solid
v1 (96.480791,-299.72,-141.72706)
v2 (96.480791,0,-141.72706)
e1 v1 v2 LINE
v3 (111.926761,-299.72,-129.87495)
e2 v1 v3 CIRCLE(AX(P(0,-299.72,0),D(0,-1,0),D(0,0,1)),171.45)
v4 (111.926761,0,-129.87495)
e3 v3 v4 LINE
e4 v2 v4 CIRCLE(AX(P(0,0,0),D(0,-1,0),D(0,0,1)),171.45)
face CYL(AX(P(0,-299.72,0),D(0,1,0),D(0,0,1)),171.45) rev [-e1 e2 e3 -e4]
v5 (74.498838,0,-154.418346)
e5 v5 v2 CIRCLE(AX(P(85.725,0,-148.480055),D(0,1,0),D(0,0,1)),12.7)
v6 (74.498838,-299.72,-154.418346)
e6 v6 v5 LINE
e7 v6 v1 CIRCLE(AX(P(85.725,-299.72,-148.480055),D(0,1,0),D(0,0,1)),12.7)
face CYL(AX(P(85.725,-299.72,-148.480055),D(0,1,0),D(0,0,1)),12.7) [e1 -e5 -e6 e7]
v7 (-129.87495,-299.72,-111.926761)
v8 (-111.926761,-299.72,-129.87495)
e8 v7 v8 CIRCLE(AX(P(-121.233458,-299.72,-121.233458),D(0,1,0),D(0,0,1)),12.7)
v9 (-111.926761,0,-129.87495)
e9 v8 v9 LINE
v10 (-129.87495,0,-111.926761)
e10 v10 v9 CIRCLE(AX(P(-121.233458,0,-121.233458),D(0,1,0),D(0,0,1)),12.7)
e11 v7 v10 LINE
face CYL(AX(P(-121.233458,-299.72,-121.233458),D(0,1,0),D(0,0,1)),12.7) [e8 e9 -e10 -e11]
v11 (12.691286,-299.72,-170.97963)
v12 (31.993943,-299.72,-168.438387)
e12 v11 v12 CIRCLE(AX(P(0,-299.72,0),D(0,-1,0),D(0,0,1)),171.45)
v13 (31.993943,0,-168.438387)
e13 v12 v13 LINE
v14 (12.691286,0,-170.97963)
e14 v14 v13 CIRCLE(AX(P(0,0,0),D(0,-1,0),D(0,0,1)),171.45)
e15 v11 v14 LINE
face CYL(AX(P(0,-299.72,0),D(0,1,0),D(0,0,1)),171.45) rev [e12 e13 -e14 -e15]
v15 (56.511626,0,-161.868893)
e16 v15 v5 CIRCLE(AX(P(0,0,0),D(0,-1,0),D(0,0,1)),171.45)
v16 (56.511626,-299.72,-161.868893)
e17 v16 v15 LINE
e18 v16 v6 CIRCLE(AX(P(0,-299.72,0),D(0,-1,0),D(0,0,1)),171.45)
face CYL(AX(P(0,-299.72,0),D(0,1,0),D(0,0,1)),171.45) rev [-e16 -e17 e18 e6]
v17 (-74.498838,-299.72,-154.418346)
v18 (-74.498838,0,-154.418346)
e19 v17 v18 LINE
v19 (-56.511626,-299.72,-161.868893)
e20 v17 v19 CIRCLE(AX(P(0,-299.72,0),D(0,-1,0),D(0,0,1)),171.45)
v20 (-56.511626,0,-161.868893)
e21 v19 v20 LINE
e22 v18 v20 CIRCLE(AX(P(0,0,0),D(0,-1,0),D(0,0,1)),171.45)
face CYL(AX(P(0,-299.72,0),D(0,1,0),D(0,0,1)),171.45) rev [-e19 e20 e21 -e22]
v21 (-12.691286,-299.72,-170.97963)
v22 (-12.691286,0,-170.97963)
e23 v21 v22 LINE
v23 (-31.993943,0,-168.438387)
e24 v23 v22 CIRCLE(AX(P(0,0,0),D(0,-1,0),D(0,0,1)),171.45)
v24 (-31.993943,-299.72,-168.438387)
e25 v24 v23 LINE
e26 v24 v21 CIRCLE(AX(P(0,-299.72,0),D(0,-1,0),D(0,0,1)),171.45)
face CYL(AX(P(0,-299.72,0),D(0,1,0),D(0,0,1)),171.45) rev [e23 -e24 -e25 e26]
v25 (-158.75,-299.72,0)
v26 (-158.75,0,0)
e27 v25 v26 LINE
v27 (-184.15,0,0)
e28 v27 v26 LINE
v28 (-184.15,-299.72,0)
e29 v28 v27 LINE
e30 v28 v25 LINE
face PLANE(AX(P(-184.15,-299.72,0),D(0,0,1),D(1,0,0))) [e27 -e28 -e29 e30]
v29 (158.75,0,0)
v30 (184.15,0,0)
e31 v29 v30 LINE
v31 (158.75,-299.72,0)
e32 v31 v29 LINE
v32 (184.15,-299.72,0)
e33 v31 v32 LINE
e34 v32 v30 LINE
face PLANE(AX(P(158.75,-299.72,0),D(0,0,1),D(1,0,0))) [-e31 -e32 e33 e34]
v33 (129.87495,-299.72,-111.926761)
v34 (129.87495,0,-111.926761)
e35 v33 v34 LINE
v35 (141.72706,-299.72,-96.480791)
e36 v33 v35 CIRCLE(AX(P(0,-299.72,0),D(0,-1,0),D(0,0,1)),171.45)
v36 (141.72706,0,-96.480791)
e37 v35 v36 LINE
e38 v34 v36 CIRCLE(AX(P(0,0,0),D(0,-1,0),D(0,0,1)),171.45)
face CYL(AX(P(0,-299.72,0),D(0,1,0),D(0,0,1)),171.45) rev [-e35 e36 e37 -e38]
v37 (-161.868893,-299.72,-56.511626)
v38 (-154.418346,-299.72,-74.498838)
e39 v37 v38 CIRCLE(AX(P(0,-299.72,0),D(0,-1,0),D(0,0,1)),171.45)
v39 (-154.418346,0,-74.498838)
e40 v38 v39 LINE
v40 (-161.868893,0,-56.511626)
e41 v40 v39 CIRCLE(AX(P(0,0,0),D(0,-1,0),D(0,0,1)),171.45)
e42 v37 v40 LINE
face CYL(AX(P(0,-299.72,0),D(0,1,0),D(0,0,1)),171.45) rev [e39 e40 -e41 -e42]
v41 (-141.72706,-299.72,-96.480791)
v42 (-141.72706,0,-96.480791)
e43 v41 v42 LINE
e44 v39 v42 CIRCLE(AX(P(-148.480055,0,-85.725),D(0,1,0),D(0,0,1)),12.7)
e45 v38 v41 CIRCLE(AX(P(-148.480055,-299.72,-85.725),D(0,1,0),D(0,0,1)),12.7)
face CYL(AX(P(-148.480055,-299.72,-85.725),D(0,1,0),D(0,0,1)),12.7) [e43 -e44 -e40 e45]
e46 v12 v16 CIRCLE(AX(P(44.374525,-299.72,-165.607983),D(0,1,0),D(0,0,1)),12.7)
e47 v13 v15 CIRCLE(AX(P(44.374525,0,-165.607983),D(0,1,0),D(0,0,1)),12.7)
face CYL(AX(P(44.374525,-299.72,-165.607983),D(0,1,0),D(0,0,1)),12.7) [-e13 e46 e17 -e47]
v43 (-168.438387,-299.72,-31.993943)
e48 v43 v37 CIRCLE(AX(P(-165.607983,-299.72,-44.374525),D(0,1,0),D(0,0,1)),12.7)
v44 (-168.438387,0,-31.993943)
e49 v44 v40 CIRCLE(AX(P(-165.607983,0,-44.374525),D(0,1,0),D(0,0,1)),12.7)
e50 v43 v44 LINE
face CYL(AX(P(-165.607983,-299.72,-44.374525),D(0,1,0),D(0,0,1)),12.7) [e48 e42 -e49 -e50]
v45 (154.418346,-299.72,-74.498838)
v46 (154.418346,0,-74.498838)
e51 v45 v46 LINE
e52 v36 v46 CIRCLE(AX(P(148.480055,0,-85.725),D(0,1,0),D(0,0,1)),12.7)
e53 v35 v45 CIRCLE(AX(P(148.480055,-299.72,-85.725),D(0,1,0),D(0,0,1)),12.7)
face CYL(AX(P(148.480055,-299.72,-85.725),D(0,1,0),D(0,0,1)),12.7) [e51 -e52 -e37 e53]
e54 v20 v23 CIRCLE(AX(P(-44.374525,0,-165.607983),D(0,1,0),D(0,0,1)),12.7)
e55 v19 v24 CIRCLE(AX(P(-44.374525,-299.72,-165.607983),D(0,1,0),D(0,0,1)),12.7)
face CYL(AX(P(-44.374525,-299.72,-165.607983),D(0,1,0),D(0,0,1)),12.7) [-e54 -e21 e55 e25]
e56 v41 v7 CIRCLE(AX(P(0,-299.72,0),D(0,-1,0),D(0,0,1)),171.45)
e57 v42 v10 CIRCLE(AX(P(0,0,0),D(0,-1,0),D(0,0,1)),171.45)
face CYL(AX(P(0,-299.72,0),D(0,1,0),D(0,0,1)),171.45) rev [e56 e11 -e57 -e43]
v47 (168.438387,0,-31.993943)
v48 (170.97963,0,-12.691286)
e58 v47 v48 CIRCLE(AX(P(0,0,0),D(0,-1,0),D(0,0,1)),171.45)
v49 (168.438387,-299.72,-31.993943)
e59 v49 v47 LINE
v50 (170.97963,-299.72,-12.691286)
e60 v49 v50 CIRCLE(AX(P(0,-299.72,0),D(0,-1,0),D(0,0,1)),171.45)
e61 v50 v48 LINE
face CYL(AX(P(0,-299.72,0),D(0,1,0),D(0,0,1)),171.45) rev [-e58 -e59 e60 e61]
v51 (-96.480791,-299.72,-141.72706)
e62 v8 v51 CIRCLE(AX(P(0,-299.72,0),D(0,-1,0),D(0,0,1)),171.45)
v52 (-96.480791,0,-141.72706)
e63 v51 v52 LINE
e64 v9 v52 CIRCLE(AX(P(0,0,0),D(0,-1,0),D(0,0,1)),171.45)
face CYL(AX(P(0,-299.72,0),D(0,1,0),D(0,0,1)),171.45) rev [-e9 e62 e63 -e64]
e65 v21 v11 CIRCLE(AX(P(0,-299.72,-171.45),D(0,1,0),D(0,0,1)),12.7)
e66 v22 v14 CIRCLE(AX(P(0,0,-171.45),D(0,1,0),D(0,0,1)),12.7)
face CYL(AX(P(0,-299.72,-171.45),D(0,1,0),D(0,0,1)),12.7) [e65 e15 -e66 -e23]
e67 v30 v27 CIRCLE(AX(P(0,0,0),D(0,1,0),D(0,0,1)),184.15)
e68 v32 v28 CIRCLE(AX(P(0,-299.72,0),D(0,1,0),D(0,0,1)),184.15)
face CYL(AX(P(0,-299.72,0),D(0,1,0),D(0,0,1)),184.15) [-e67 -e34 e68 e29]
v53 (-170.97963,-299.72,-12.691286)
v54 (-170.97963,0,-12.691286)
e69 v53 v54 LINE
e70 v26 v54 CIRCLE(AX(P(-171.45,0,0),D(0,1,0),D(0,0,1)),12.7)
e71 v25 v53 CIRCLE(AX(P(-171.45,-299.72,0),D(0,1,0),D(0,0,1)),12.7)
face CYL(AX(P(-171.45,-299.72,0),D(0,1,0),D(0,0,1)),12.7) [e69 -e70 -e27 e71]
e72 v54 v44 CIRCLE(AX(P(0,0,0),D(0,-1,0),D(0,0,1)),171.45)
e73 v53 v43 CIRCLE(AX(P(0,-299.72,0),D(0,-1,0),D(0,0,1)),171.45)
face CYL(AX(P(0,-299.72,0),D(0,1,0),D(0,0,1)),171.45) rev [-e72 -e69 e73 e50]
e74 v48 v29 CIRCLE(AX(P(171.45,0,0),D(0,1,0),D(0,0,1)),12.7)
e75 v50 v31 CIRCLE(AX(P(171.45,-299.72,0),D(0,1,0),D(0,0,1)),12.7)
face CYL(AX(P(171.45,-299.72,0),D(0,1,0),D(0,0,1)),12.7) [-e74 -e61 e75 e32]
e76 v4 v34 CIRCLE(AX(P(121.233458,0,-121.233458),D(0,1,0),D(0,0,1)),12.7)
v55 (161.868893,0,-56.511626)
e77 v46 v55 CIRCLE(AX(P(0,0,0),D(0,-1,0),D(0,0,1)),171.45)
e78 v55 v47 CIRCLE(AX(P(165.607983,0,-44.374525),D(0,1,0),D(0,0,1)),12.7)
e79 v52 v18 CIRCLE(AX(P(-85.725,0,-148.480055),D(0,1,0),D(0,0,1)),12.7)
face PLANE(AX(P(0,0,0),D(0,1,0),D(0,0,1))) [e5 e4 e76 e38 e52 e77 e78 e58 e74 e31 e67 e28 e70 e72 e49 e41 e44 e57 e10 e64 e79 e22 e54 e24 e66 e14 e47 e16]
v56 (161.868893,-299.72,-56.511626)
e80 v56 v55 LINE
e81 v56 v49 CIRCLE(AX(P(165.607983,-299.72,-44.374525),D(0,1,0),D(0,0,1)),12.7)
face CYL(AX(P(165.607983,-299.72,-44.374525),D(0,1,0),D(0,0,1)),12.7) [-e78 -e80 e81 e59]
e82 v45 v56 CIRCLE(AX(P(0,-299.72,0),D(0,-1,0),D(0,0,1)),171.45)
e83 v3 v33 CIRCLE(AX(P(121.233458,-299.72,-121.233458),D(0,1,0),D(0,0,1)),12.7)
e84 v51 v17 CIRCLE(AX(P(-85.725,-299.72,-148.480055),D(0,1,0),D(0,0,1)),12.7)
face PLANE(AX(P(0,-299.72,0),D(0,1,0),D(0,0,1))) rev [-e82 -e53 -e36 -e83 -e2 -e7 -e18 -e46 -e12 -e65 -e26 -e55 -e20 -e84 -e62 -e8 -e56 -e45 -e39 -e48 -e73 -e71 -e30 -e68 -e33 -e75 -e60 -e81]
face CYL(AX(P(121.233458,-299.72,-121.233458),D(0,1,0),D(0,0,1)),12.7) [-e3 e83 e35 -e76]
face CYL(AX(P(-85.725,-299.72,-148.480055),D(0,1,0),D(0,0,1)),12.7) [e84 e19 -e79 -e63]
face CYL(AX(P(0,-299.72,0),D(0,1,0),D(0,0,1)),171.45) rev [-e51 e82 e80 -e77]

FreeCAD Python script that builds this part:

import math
import FreeCAD as App
import Part
import Sketcher
Q = App.Units.Quantity

doc = App.newDocument("Part")
params = doc.addObject("Spreadsheet::Sheet", "Params")
for row, (alias, value) in enumerate([
    ("sketch1_radius", "0.5 in"),
    ("sketch1_width", "1 in"),
    ("sketch1_radius2", "7.25 in"),
    ("sketch1_radius3", "6.75 in"),
    ("pad1_length", "11.8 in"),
], start=1):
    params.set(f"A{row}", alias)
    params.set(f"B{row}", "=" + value)
    params.setAlias(f"B{row}", alias)

body = doc.addObject("PartDesign::Body", "Body")

# Sketch on XZ plane
sketch1 = body.newObject("Sketcher::SketchObject", "Sketch")
sketch1.AttachmentSupport = (doc.getObject("XZ_Plane"), [""])
sketch1.MapMode = "FlatFace"
sketch1.addGeometry(Part.LineSegment(App.Vector(159, 0, 0), App.Vector(184, 0, 0)), False)
sketch1.addGeometry(Part.ArcOfCircle(Part.Circle(App.Vector(0, 0, 0), App.Vector(0, 0, 1), 184), math.radians(180), math.radians(360)), False)
sketch1.addGeometry(Part.LineSegment(App.Vector(-184, 0, 0), App.Vector(-159, 0, 0)), False)
sketch1.addGeometry(Part.ArcOfCircle(Part.Circle(App.Vector(-171, 0, 0), App.Vector(0, 0, 1), 13), math.radians(-88), math.radians(0)), False)
sketch1.addGeometry(Part.ArcOfCircle(Part.Circle(App.Vector(0, 0, 0), App.Vector(0, 0, 1), 171), math.radians(-175.75), math.radians(-169.25)), False)
sketch1.addGeometry(Part.ArcOfCircle(Part.Circle(App.Vector(-166, -44, 0), App.Vector(0, 0, 1), 13), math.radians(-73), math.radians(103)), False)
sketch1.addGeometry(Part.ArcOfCircle(Part.Circle(App.Vector(0, 0, 0), App.Vector(0, 0, 1), 171), math.radians(-160.75), math.radians(-154.25)), False)
sketch1.addGeometry(Part.ArcOfCircle(Part.Circle(App.Vector(-148, -86, 0), App.Vector(0, 0, 1), 13), math.radians(-58), math.radians(118)), False)
sketch1.addGeometry(Part.ArcOfCircle(Part.Circle(App.Vector(0, 0, 0), App.Vector(0, 0, 1), 171), math.radians(-145.75), math.radians(-139.25)), False)
sketch1.addGeometry(Part.ArcOfCircle(Part.Circle(App.Vector(-121, -121, 0), App.Vector(0, 0, 1), 13), math.radians(-43), math.radians(133)), False)
sketch1.addGeometry(Part.ArcOfCircle(Part.Circle(App.Vector(0, 0, 0), App.Vector(0, 0, 1), 171), math.radians(-130.75), math.radians(-124.25)), False)
sketch1.addGeometry(Part.ArcOfCircle(Part.Circle(App.Vector(-86, -148, 0), App.Vector(0, 0, 1), 13), math.radians(-28), math.radians(148)), False)
sketch1.addGeometry(Part.ArcOfCircle(Part.Circle(App.Vector(0, 0, 0), App.Vector(0, 0, 1), 171), math.radians(-115.75), math.radians(-109.25)), False)
sketch1.addGeometry(Part.ArcOfCircle(Part.Circle(App.Vector(-44, -166, 0), App.Vector(0, 0, 1), 13), math.radians(-13), math.radians(163)), False)
sketch1.addGeometry(Part.ArcOfCircle(Part.Circle(App.Vector(0, 0, 0), App.Vector(0, 0, 1), 171), math.radians(-100.75), math.radians(-94.25)), False)
sketch1.addGeometry(Part.ArcOfCircle(Part.Circle(App.Vector(0, -171, 0), App.Vector(0, 0, 1), 13), math.radians(2), math.radians(178)), False)
sketch1.addGeometry(Part.ArcOfCircle(Part.Circle(App.Vector(0, 0, 0), App.Vector(0, 0, 1), 171), math.radians(-85.75), math.radians(-79.25)), False)
sketch1.addGeometry(Part.ArcOfCircle(Part.Circle(App.Vector(44, -166, 0), App.Vector(0, 0, 1), 13), math.radians(17), math.radians(193)), False)
sketch1.addGeometry(Part.ArcOfCircle(Part.Circle(App.Vector(0, 0, 0), App.Vector(0, 0, 1), 171), math.radians(-70.75), math.radians(-64.25)), False)
sketch1.addGeometry(Part.ArcOfCircle(Part.Circle(App.Vector(86, -148, 0), App.Vector(0, 0, 1), 13), math.radians(32), math.radians(208)), False)
sketch1.addGeometry(Part.ArcOfCircle(Part.Circle(App.Vector(0, 0, 0), App.Vector(0, 0, 1), 171), math.radians(-55.75), math.radians(-49.25)), False)
sketch1.addGeometry(Part.ArcOfCircle(Part.Circle(App.Vector(121, -121, 0), App.Vector(0, 0, 1), 13), math.radians(47), math.radians(223)), False)
sketch1.addGeometry(Part.ArcOfCircle(Part.Circle(App.Vector(0, 0, 0), App.Vector(0, 0, 1), 171), math.radians(-40.75), math.radians(-34.25)), False)
sketch1.addGeometry(Part.ArcOfCircle(Part.Circle(App.Vector(148, -86, 0), App.Vector(0, 0, 1), 13), math.radians(62), math.radians(238)), False)
sketch1.addGeometry(Part.ArcOfCircle(Part.Circle(App.Vector(0, 0, 0), App.Vector(0, 0, 1), 171), math.radians(-25.75), math.radians(-19.25)), False)
sketch1.addGeometry(Part.ArcOfCircle(Part.Circle(App.Vector(166, -44, 0), App.Vector(0, 0, 1), 13), math.radians(77), math.radians(253)), False)
sketch1.addGeometry(Part.ArcOfCircle(Part.Circle(App.Vector(0, 0, 0), App.Vector(0, 0, 1), 171), math.radians(-10.75), math.radians(-4.25)), False)
sketch1.addGeometry(Part.ArcOfCircle(Part.Circle(App.Vector(171, 0, 0), App.Vector(0, 0, 1), 13), math.radians(180), math.radians(268)), False)
sketch1.addConstraint(Sketcher.Constraint("Coincident", 0, 2, 1, 2))
sketch1.addConstraint(Sketcher.Constraint("Coincident", 1, 1, 2, 1))
sketch1.addConstraint(Sketcher.Constraint("Coincident", 2, 2, 3, 2))
sketch1.addConstraint(Sketcher.Constraint("Coincident", 3, 1, 4, 1))
sketch1.addConstraint(Sketcher.Constraint("Coincident", 4, 2, 5, 2))
sketch1.addConstraint(Sketcher.Constraint("Coincident", 5, 1, 6, 1))
sketch1.addConstraint(Sketcher.Constraint("Coincident", 6, 2, 7, 2))
sketch1.addConstraint(Sketcher.Constraint("Coincident", 7, 1, 8, 1))
sketch1.addConstraint(Sketcher.Constraint("Coincident", 8, 2, 9, 2))
sketch1.addConstraint(Sketcher.Constraint("Coincident", 9, 1, 10, 1))
sketch1.addConstraint(Sketcher.Constraint("Coincident", 10, 2, 11, 2))
sketch1.addConstraint(Sketcher.Constraint("Coincident", 11, 1, 12, 1))
sketch1.addConstraint(Sketcher.Constraint("Coincident", 12, 2, 13, 2))
sketch1.addConstraint(Sketcher.Constraint("Coincident", 13, 1, 14, 1))
sketch1.addConstraint(Sketcher.Constraint("Coincident", 14, 2, 15, 2))
sketch1.addConstraint(Sketcher.Constraint("Coincident", 15, 1, 16, 1))
sketch1.addConstraint(Sketcher.Constraint("Coincident", 16, 2, 17, 2))
sketch1.addConstraint(Sketcher.Constraint("Coincident", 17, 1, 18, 1))
sketch1.addConstraint(Sketcher.Constraint("Coincident", 18, 2, 19, 2))
sketch1.addConstraint(Sketcher.Constraint("Coincident", 19, 1, 20, 1))
sketch1.addConstraint(Sketcher.Constraint("Coincident", 20, 2, 21, 2))
sketch1.addConstraint(Sketcher.Constraint("Coincident", 21, 1, 22, 1))
sketch1.addConstraint(Sketcher.Constraint("Coincident", 22, 2, 23, 2))
sketch1.addConstraint(Sketcher.Constraint("Coincident", 23, 1, 24, 1))
sketch1.addConstraint(Sketcher.Constraint("Coincident", 24, 2, 25, 2))
sketch1.addConstraint(Sketcher.Constraint("Coincident", 25, 1, 26, 1))
sketch1.addConstraint(Sketcher.Constraint("Coincident", 26, 2, 27, 2))
sketch1.addConstraint(Sketcher.Constraint("Coincident", 27, 1, 0, 1))
sketch1.addConstraint(Sketcher.Constraint("Horizontal", 0))
sketch1.addConstraint(Sketcher.Constraint("Horizontal", 2))
sketch1.addConstraint(Sketcher.Constraint("Coincident", 1, 3, -1, 1))
sketch1.addConstraint(Sketcher.Constraint("Coincident", 4, 3, -1, 1))
sketch1.addConstraint(Sketcher.Constraint("Coincident", 6, 3, -1, 1))
sketch1.addConstraint(Sketcher.Constraint("Coincident", 8, 3, -1, 1))
sketch1.addConstraint(Sketcher.Constraint("Coincident", 10, 3, -1, 1))
sketch1.addConstraint(Sketcher.Constraint("Coincident", 12, 3, -1, 1))
sketch1.addConstraint(Sketcher.Constraint("Coincident", 14, 3, -1, 1))
sketch1.addConstraint(Sketcher.Constraint("Coincident", 16, 3, -1, 1))
sketch1.addConstraint(Sketcher.Constraint("Coincident", 18, 3, -1, 1))
sketch1.addConstraint(Sketcher.Constraint("Coincident", 20, 3, -1, 1))
sketch1.addConstraint(Sketcher.Constraint("Coincident", 22, 3, -1, 1))
sketch1.addConstraint(Sketcher.Constraint("Coincident", 24, 3, -1, 1))
sketch1.addConstraint(Sketcher.Constraint("Coincident", 26, 3, -1, 1))
sketch1.addConstraint(Sketcher.Constraint("Equal", 3, 5))
sketch1.addConstraint(Sketcher.Constraint("Equal", 4, 6))
sketch1.addConstraint(Sketcher.Constraint("Equal", 5, 7))
sketch1.addConstraint(Sketcher.Constraint("Equal", 6, 8))
sketch1.addConstraint(Sketcher.Constraint("Equal", 7, 9))
sketch1.addConstraint(Sketcher.Constraint("Equal", 8, 10))
sketch1.addConstraint(Sketcher.Constraint("Equal", 9, 11))
sketch1.addConstraint(Sketcher.Constraint("Equal", 10, 12))
sketch1.addConstraint(Sketcher.Constraint("Equal", 11, 13))
sketch1.addConstraint(Sketcher.Constraint("Equal", 12, 14))
sketch1.addConstraint(Sketcher.Constraint("Equal", 13, 15))
sketch1.addConstraint(Sketcher.Constraint("Equal", 14, 16))
sketch1.addConstraint(Sketcher.Constraint("Equal", 15, 17))
sketch1.addConstraint(Sketcher.Constraint("Equal", 16, 18))
sketch1.addConstraint(Sketcher.Constraint("Equal", 17, 19))
sketch1.addConstraint(Sketcher.Constraint("Equal", 18, 20))
sketch1.addConstraint(Sketcher.Constraint("Equal", 19, 21))
sketch1.addConstraint(Sketcher.Constraint("Equal", 20, 22))
sketch1.addConstraint(Sketcher.Constraint("Equal", 21, 23))
sketch1.addConstraint(Sketcher.Constraint("Equal", 22, 24))
sketch1.addConstraint(Sketcher.Constraint("Equal", 23, 25))
sketch1.addConstraint(Sketcher.Constraint("Equal", 24, 26))
sketch1.addConstraint(Sketcher.Constraint("Equal", 25, 27))
sketch1.addConstraint(Sketcher.Constraint("Symmetric", 3, 3, 27, 3, -1, 1))
sketch1.addConstraint(Sketcher.Constraint("Symmetric", 13, 3, 17, 3, -2))
sketch1.addConstraint(Sketcher.Constraint("Symmetric", 11, 3, 19, 3, -2))
sketch1.addConstraint(Sketcher.Constraint("Symmetric", 9, 3, 21, 3, -2))
sketch1.addConstraint(Sketcher.Constraint("Symmetric", 7, 3, 23, 3, -2))
sketch1.addConstraint(Sketcher.Constraint("Symmetric", 5, 3, 25, 3, -2))
sketch1.addConstraint(Sketcher.Constraint("PointOnObject", 3, 3, -1))
sketch1.addConstraint(Sketcher.Constraint("PointOnObject", 15, 3, -2))
sketch1.addConstraint(Sketcher.Constraint("PointOnObject", 0, 2, -1))
sketch1.addConstraint(Sketcher.Constraint("PointOnObject", 1, 1, -1))
sketch1.addConstraint(Sketcher.Constraint("Radius", 3, Q("0.5 in")))
sketch1.addConstraint(Sketcher.Constraint("DistanceX", 0, 1, 0, 2, Q("1 in")))
sketch1.addConstraint(Sketcher.Constraint("Radius", 1, Q("7.25 in")))
sketch1.addConstraint(Sketcher.Constraint("Radius", 4, Q("6.75 in")))
sketch1.addConstraint(Sketcher.Constraint("DistanceY", 15, 3, -1, 1, Q("6.75 in")))
sketch1.addConstraint(Sketcher.Constraint("DistanceY", 7, 3, -1, 1, Q("3.375 in")))
sketch1.addConstraint(Sketcher.Constraint("DistanceX", 11, 3, -1, 1, Q("3.375 in")))
sketch1.addConstraint(Sketcher.Constraint("DistanceY", 5, 1, 5, 3, 12.137101))
sketch1.addConstraint(Sketcher.Constraint("DistanceX", 7, 1, 9, 3, 20.493602))
sketch1.addConstraint(Sketcher.Constraint("DistanceX", 7, 1, 9, 1, 29.800299))
sketch1.addConstraint(Sketcher.Constraint("DistanceY", 10, 2, 9, 3, 20.493602))
sketch1.addConstraint(Sketcher.Constraint("DistanceX", 17, 3, 17, 1, 12.137101))
sketch1.addConstraint(Sketcher.Constraint("DistanceX", 7, 1, -1, 1, 141.72706))
sketch1.addConstraint(Sketcher.Constraint("DistanceY", 11, 3, 5, 3, 104.10553))
sketch1.addConstraint(Sketcher.Constraint("DistanceX", 7, 3, 13, 3, 104.10553))
sketch1.setExpression("Constraints[76]", "Params.sketch1_radius")
sketch1.setExpression("Constraints[77]", "Params.sketch1_width")
sketch1.setExpression("Constraints[78]", "Params.sketch1_radius2")
sketch1.setExpression("Constraints[79]", "Params.sketch1_radius3")
pad1 = body.newObject("PartDesign::Pad", "Pad")
pad1.Profile = sketch1
pad1.setExpression("Length", "Params.pad1_length")

doc.recompute()
